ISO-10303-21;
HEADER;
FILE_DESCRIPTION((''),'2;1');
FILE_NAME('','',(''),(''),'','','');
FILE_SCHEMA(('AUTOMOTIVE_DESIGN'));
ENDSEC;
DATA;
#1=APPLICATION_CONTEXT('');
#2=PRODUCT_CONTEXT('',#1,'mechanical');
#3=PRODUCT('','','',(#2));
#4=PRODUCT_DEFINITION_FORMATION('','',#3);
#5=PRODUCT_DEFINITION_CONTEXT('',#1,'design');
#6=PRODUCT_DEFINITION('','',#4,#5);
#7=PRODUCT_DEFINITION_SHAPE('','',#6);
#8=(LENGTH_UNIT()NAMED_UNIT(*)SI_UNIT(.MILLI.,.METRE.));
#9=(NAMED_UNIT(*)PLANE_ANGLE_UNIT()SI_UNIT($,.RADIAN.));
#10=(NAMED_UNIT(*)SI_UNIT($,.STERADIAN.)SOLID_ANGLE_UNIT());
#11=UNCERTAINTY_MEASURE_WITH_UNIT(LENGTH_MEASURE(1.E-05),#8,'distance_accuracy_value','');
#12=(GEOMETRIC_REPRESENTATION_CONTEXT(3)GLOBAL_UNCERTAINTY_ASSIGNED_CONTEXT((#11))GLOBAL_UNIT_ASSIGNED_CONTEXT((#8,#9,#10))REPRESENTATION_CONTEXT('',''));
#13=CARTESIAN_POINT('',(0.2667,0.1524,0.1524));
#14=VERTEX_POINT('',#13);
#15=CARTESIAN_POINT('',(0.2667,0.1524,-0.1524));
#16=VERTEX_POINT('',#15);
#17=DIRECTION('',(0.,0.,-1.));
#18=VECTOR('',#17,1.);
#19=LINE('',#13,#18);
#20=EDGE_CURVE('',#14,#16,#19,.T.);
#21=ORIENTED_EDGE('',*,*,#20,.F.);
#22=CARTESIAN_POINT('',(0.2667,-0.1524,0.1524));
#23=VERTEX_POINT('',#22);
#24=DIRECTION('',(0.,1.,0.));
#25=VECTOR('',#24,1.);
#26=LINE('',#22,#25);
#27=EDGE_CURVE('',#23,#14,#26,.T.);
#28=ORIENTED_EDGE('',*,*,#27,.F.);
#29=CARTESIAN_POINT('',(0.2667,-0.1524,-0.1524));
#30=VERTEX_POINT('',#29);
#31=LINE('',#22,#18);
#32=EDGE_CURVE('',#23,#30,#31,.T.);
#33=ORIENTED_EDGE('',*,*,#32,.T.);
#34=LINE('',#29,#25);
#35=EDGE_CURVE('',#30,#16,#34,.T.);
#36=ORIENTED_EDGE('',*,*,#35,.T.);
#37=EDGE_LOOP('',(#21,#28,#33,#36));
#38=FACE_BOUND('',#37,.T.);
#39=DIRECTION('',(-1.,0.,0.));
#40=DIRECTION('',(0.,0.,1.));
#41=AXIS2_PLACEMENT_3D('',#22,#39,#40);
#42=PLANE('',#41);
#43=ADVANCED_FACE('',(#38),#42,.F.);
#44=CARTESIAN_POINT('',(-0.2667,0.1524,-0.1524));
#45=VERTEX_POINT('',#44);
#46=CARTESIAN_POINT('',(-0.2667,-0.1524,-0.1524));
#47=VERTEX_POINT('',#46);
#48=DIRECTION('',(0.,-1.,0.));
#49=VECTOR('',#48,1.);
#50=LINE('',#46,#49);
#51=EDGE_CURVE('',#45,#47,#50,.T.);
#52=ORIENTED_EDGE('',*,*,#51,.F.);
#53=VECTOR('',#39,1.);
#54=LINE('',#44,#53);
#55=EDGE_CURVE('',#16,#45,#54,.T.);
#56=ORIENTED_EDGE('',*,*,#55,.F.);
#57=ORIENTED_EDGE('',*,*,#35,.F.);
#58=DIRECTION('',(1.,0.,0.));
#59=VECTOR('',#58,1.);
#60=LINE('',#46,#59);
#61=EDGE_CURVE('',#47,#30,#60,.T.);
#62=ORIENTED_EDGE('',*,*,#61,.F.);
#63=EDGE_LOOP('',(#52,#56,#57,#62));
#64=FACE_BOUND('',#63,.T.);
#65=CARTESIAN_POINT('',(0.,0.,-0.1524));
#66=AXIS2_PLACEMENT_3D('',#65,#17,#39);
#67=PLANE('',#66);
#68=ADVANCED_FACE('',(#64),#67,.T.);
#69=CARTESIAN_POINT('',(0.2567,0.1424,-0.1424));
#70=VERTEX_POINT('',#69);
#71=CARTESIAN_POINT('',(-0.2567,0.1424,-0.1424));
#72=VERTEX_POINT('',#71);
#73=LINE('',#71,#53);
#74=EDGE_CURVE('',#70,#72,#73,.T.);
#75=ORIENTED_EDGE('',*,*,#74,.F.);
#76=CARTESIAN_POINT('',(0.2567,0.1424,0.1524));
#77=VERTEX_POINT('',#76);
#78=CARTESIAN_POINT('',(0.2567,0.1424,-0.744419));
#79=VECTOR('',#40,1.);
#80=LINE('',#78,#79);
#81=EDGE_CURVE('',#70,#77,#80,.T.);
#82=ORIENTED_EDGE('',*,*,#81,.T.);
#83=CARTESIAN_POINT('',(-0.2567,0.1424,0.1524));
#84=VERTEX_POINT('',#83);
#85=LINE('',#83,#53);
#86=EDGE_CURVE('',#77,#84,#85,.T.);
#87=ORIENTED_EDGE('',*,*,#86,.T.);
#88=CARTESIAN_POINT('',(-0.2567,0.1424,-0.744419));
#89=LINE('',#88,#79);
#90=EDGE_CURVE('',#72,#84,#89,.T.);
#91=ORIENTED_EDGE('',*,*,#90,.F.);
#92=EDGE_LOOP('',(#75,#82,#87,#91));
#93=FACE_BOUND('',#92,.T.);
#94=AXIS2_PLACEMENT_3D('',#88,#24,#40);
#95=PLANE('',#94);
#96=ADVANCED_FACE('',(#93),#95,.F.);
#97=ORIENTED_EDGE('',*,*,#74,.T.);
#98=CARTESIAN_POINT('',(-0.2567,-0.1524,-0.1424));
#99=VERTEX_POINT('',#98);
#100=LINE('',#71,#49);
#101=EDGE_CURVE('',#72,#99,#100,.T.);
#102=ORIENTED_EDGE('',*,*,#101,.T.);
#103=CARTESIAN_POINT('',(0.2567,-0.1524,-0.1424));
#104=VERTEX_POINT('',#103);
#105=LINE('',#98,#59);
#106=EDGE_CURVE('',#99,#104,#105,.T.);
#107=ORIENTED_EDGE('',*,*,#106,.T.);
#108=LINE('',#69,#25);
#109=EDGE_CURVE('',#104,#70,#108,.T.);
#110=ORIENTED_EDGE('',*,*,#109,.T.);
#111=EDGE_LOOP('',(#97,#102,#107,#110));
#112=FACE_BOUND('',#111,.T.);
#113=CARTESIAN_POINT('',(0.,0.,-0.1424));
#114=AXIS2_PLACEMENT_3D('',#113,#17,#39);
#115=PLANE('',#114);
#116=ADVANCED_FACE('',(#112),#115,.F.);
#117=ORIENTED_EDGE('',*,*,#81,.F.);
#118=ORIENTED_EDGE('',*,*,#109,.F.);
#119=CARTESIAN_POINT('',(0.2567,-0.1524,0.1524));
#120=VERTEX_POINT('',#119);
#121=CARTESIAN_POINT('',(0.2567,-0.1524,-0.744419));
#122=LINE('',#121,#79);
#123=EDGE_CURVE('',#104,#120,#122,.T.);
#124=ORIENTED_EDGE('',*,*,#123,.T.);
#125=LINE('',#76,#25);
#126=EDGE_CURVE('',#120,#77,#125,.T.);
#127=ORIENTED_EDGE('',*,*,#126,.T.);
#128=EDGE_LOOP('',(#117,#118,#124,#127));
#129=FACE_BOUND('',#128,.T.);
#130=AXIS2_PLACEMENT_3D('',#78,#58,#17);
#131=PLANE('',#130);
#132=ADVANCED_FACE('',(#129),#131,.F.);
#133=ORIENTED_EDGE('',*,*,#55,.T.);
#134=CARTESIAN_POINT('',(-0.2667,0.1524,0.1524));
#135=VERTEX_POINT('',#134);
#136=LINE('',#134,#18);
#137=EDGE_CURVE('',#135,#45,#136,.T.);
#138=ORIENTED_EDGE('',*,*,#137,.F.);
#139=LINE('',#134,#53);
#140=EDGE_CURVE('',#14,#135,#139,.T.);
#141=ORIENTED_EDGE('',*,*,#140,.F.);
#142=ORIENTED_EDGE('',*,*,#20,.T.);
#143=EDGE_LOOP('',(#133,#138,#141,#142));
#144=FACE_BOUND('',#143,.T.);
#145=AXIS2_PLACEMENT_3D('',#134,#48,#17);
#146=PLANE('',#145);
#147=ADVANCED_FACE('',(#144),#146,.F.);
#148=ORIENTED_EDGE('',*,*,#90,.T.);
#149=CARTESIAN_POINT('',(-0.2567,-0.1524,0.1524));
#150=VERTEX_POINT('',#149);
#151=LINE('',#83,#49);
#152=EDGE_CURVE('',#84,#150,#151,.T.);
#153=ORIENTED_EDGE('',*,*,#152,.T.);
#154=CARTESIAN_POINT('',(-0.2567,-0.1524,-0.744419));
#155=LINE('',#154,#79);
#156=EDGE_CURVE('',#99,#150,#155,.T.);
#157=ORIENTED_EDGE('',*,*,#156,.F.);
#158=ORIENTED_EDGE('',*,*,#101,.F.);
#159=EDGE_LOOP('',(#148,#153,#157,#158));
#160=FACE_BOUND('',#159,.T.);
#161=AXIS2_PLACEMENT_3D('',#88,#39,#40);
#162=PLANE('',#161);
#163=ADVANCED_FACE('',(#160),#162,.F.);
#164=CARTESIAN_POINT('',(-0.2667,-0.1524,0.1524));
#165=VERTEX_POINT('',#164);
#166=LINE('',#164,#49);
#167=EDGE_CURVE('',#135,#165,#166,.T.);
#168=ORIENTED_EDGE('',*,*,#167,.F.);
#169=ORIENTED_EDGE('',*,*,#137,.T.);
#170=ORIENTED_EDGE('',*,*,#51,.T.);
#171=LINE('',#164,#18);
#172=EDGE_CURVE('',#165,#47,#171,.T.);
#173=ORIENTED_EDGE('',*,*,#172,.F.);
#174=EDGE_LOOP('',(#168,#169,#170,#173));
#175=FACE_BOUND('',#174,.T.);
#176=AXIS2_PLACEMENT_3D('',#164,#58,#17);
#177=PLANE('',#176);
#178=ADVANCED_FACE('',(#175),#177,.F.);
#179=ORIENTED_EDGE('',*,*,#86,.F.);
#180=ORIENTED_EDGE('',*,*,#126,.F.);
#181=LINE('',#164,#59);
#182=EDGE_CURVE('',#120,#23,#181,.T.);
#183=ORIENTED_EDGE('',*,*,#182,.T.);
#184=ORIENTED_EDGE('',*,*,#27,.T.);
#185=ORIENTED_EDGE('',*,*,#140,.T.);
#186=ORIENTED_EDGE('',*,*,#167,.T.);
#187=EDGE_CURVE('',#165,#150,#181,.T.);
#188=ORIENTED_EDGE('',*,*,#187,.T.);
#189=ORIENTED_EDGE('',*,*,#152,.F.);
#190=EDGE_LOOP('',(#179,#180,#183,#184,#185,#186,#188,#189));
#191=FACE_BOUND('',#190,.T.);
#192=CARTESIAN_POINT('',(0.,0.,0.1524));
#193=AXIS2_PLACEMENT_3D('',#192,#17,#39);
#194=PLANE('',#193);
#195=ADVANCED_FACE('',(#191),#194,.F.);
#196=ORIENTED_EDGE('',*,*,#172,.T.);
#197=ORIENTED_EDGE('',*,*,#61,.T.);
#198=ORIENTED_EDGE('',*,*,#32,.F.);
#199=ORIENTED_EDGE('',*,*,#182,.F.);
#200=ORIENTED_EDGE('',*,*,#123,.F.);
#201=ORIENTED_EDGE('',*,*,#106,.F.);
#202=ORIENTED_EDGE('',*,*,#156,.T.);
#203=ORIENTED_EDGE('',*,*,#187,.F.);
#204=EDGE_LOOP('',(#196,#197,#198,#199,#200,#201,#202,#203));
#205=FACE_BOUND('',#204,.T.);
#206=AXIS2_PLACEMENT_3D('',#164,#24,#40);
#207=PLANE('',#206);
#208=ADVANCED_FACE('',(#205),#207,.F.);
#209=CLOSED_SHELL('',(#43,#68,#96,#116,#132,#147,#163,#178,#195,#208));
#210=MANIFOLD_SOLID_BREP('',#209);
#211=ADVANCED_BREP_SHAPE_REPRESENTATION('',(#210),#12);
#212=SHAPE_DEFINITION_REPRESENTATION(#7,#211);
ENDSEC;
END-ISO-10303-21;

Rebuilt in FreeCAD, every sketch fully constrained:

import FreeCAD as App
import Part
import Sketcher
Q = App.Units.Quantity


def add_polygon(sketch, points):
    """Adds a closed chain of lines whose ends are joined by coincident constraints."""
    first, n = sketch.GeometryCount, len(points)
    for a, b in zip(points, points[1:] + points[:1]):
        sketch.addGeometry(Part.LineSegment(App.Vector(*a, 0), App.Vector(*b, 0)), False)
    for i in range(n):
        sketch.addConstraint(Sketcher.Constraint("Coincident", first + i, 2, first + (i + 1) % n, 1))

doc = App.newDocument("Part")
params = doc.addObject("Spreadsheet::Sheet", "Params")
for row, (alias, value) in enumerate([
    ("sketch1_width", "0.021 in"),
    ("sketch1_height", "0.012 in"),
    ("pad1_length", "0.012 in"),
    ("pocket1_length", "0.2948 mm"),
], start=1):
    params.set(f"A{row}", alias)
    params.set(f"B{row}", "=" + value)
    params.setAlias(f"B{row}", alias)

body = doc.addObject("PartDesign::Body", "Body")

# Sketch on XY plane
sketch1 = body.newObject("Sketcher::SketchObject", "Sketch")
sketch1.AttachmentSupport = (doc.getObject("XY_Plane"), [""])
sketch1.MapMode = "FlatFace"
add_polygon(sketch1, [(-0.27, 0.15), (-0.27, -0.15), (0.27, -0.15), (0.27, 0.15)])  # lines 0-3
sketch1.addConstraint([
    Sketcher.Constraint("Vertical", 0),
    Sketcher.Constraint("Horizontal", 1),
    Sketcher.Constraint("Vertical", 2),
    Sketcher.Constraint("Horizontal", 3),
    Sketcher.Constraint("Symmetric", 0, 2, 2, 2, -1, 1),
    Sketcher.Constraint("DistanceX", 1, 1, 1, 2, Q("0.021 in")),
    Sketcher.Constraint("DistanceY", 0, 2, 0, 1, Q("0.012 in")),
])
sketch1.setExpression("Constraints[9]", "Params.sketch1_width")
sketch1.setExpression("Constraints[10]", "Params.sketch1_height")
pad1 = body.newObject("PartDesign::Pad", "Pad")
pad1.Profile = sketch1
pad1.setExpression("Length", "Params.pad1_length")
pad1.Midplane = True

# Sketch on XY plane
sketch2 = body.newObject("Sketcher::SketchObject", "Sketch001")
sketch2.AttachmentSupport = (doc.getObject("XY_Plane"), [""])
sketch2.MapMode = "FlatFace"
sketch2.AttachmentOffset = App.Placement(App.Vector(0, 0, 0.006 * 25.4), App.Rotation())
add_polygon(sketch2, [(-0.26, 0.14), (-0.26, -0.15), (0.26, -0.15), (0.26, 0.14)])  # lines 0-3
sketch2.addConstraint([
    Sketcher.Constraint("Vertical", 0),
    Sketcher.Constraint("Horizontal", 1),
    Sketcher.Constraint("Vertical", 2),
    Sketcher.Constraint("Horizontal", 3),
    Sketcher.Constraint("DistanceY", 0, 2, -1, 1, Q("0.006 in")),
    Sketcher.Constraint("DistanceX", 1, 1, 1, 2, Q("0.5134 mm")),
    Sketcher.Constraint("DistanceY", 0, 2, 0, 1, Q("0.2948 mm")),
    Sketcher.Constraint("DistanceX", 0, 2, -1, 1, Q("0.2567 mm")),
])
pocket1 = body.newObject("PartDesign::Pocket", "Pocket")
pocket1.Profile = sketch2
pocket1.setExpression("Length", "Params.pocket1_length")

doc.recompute()
